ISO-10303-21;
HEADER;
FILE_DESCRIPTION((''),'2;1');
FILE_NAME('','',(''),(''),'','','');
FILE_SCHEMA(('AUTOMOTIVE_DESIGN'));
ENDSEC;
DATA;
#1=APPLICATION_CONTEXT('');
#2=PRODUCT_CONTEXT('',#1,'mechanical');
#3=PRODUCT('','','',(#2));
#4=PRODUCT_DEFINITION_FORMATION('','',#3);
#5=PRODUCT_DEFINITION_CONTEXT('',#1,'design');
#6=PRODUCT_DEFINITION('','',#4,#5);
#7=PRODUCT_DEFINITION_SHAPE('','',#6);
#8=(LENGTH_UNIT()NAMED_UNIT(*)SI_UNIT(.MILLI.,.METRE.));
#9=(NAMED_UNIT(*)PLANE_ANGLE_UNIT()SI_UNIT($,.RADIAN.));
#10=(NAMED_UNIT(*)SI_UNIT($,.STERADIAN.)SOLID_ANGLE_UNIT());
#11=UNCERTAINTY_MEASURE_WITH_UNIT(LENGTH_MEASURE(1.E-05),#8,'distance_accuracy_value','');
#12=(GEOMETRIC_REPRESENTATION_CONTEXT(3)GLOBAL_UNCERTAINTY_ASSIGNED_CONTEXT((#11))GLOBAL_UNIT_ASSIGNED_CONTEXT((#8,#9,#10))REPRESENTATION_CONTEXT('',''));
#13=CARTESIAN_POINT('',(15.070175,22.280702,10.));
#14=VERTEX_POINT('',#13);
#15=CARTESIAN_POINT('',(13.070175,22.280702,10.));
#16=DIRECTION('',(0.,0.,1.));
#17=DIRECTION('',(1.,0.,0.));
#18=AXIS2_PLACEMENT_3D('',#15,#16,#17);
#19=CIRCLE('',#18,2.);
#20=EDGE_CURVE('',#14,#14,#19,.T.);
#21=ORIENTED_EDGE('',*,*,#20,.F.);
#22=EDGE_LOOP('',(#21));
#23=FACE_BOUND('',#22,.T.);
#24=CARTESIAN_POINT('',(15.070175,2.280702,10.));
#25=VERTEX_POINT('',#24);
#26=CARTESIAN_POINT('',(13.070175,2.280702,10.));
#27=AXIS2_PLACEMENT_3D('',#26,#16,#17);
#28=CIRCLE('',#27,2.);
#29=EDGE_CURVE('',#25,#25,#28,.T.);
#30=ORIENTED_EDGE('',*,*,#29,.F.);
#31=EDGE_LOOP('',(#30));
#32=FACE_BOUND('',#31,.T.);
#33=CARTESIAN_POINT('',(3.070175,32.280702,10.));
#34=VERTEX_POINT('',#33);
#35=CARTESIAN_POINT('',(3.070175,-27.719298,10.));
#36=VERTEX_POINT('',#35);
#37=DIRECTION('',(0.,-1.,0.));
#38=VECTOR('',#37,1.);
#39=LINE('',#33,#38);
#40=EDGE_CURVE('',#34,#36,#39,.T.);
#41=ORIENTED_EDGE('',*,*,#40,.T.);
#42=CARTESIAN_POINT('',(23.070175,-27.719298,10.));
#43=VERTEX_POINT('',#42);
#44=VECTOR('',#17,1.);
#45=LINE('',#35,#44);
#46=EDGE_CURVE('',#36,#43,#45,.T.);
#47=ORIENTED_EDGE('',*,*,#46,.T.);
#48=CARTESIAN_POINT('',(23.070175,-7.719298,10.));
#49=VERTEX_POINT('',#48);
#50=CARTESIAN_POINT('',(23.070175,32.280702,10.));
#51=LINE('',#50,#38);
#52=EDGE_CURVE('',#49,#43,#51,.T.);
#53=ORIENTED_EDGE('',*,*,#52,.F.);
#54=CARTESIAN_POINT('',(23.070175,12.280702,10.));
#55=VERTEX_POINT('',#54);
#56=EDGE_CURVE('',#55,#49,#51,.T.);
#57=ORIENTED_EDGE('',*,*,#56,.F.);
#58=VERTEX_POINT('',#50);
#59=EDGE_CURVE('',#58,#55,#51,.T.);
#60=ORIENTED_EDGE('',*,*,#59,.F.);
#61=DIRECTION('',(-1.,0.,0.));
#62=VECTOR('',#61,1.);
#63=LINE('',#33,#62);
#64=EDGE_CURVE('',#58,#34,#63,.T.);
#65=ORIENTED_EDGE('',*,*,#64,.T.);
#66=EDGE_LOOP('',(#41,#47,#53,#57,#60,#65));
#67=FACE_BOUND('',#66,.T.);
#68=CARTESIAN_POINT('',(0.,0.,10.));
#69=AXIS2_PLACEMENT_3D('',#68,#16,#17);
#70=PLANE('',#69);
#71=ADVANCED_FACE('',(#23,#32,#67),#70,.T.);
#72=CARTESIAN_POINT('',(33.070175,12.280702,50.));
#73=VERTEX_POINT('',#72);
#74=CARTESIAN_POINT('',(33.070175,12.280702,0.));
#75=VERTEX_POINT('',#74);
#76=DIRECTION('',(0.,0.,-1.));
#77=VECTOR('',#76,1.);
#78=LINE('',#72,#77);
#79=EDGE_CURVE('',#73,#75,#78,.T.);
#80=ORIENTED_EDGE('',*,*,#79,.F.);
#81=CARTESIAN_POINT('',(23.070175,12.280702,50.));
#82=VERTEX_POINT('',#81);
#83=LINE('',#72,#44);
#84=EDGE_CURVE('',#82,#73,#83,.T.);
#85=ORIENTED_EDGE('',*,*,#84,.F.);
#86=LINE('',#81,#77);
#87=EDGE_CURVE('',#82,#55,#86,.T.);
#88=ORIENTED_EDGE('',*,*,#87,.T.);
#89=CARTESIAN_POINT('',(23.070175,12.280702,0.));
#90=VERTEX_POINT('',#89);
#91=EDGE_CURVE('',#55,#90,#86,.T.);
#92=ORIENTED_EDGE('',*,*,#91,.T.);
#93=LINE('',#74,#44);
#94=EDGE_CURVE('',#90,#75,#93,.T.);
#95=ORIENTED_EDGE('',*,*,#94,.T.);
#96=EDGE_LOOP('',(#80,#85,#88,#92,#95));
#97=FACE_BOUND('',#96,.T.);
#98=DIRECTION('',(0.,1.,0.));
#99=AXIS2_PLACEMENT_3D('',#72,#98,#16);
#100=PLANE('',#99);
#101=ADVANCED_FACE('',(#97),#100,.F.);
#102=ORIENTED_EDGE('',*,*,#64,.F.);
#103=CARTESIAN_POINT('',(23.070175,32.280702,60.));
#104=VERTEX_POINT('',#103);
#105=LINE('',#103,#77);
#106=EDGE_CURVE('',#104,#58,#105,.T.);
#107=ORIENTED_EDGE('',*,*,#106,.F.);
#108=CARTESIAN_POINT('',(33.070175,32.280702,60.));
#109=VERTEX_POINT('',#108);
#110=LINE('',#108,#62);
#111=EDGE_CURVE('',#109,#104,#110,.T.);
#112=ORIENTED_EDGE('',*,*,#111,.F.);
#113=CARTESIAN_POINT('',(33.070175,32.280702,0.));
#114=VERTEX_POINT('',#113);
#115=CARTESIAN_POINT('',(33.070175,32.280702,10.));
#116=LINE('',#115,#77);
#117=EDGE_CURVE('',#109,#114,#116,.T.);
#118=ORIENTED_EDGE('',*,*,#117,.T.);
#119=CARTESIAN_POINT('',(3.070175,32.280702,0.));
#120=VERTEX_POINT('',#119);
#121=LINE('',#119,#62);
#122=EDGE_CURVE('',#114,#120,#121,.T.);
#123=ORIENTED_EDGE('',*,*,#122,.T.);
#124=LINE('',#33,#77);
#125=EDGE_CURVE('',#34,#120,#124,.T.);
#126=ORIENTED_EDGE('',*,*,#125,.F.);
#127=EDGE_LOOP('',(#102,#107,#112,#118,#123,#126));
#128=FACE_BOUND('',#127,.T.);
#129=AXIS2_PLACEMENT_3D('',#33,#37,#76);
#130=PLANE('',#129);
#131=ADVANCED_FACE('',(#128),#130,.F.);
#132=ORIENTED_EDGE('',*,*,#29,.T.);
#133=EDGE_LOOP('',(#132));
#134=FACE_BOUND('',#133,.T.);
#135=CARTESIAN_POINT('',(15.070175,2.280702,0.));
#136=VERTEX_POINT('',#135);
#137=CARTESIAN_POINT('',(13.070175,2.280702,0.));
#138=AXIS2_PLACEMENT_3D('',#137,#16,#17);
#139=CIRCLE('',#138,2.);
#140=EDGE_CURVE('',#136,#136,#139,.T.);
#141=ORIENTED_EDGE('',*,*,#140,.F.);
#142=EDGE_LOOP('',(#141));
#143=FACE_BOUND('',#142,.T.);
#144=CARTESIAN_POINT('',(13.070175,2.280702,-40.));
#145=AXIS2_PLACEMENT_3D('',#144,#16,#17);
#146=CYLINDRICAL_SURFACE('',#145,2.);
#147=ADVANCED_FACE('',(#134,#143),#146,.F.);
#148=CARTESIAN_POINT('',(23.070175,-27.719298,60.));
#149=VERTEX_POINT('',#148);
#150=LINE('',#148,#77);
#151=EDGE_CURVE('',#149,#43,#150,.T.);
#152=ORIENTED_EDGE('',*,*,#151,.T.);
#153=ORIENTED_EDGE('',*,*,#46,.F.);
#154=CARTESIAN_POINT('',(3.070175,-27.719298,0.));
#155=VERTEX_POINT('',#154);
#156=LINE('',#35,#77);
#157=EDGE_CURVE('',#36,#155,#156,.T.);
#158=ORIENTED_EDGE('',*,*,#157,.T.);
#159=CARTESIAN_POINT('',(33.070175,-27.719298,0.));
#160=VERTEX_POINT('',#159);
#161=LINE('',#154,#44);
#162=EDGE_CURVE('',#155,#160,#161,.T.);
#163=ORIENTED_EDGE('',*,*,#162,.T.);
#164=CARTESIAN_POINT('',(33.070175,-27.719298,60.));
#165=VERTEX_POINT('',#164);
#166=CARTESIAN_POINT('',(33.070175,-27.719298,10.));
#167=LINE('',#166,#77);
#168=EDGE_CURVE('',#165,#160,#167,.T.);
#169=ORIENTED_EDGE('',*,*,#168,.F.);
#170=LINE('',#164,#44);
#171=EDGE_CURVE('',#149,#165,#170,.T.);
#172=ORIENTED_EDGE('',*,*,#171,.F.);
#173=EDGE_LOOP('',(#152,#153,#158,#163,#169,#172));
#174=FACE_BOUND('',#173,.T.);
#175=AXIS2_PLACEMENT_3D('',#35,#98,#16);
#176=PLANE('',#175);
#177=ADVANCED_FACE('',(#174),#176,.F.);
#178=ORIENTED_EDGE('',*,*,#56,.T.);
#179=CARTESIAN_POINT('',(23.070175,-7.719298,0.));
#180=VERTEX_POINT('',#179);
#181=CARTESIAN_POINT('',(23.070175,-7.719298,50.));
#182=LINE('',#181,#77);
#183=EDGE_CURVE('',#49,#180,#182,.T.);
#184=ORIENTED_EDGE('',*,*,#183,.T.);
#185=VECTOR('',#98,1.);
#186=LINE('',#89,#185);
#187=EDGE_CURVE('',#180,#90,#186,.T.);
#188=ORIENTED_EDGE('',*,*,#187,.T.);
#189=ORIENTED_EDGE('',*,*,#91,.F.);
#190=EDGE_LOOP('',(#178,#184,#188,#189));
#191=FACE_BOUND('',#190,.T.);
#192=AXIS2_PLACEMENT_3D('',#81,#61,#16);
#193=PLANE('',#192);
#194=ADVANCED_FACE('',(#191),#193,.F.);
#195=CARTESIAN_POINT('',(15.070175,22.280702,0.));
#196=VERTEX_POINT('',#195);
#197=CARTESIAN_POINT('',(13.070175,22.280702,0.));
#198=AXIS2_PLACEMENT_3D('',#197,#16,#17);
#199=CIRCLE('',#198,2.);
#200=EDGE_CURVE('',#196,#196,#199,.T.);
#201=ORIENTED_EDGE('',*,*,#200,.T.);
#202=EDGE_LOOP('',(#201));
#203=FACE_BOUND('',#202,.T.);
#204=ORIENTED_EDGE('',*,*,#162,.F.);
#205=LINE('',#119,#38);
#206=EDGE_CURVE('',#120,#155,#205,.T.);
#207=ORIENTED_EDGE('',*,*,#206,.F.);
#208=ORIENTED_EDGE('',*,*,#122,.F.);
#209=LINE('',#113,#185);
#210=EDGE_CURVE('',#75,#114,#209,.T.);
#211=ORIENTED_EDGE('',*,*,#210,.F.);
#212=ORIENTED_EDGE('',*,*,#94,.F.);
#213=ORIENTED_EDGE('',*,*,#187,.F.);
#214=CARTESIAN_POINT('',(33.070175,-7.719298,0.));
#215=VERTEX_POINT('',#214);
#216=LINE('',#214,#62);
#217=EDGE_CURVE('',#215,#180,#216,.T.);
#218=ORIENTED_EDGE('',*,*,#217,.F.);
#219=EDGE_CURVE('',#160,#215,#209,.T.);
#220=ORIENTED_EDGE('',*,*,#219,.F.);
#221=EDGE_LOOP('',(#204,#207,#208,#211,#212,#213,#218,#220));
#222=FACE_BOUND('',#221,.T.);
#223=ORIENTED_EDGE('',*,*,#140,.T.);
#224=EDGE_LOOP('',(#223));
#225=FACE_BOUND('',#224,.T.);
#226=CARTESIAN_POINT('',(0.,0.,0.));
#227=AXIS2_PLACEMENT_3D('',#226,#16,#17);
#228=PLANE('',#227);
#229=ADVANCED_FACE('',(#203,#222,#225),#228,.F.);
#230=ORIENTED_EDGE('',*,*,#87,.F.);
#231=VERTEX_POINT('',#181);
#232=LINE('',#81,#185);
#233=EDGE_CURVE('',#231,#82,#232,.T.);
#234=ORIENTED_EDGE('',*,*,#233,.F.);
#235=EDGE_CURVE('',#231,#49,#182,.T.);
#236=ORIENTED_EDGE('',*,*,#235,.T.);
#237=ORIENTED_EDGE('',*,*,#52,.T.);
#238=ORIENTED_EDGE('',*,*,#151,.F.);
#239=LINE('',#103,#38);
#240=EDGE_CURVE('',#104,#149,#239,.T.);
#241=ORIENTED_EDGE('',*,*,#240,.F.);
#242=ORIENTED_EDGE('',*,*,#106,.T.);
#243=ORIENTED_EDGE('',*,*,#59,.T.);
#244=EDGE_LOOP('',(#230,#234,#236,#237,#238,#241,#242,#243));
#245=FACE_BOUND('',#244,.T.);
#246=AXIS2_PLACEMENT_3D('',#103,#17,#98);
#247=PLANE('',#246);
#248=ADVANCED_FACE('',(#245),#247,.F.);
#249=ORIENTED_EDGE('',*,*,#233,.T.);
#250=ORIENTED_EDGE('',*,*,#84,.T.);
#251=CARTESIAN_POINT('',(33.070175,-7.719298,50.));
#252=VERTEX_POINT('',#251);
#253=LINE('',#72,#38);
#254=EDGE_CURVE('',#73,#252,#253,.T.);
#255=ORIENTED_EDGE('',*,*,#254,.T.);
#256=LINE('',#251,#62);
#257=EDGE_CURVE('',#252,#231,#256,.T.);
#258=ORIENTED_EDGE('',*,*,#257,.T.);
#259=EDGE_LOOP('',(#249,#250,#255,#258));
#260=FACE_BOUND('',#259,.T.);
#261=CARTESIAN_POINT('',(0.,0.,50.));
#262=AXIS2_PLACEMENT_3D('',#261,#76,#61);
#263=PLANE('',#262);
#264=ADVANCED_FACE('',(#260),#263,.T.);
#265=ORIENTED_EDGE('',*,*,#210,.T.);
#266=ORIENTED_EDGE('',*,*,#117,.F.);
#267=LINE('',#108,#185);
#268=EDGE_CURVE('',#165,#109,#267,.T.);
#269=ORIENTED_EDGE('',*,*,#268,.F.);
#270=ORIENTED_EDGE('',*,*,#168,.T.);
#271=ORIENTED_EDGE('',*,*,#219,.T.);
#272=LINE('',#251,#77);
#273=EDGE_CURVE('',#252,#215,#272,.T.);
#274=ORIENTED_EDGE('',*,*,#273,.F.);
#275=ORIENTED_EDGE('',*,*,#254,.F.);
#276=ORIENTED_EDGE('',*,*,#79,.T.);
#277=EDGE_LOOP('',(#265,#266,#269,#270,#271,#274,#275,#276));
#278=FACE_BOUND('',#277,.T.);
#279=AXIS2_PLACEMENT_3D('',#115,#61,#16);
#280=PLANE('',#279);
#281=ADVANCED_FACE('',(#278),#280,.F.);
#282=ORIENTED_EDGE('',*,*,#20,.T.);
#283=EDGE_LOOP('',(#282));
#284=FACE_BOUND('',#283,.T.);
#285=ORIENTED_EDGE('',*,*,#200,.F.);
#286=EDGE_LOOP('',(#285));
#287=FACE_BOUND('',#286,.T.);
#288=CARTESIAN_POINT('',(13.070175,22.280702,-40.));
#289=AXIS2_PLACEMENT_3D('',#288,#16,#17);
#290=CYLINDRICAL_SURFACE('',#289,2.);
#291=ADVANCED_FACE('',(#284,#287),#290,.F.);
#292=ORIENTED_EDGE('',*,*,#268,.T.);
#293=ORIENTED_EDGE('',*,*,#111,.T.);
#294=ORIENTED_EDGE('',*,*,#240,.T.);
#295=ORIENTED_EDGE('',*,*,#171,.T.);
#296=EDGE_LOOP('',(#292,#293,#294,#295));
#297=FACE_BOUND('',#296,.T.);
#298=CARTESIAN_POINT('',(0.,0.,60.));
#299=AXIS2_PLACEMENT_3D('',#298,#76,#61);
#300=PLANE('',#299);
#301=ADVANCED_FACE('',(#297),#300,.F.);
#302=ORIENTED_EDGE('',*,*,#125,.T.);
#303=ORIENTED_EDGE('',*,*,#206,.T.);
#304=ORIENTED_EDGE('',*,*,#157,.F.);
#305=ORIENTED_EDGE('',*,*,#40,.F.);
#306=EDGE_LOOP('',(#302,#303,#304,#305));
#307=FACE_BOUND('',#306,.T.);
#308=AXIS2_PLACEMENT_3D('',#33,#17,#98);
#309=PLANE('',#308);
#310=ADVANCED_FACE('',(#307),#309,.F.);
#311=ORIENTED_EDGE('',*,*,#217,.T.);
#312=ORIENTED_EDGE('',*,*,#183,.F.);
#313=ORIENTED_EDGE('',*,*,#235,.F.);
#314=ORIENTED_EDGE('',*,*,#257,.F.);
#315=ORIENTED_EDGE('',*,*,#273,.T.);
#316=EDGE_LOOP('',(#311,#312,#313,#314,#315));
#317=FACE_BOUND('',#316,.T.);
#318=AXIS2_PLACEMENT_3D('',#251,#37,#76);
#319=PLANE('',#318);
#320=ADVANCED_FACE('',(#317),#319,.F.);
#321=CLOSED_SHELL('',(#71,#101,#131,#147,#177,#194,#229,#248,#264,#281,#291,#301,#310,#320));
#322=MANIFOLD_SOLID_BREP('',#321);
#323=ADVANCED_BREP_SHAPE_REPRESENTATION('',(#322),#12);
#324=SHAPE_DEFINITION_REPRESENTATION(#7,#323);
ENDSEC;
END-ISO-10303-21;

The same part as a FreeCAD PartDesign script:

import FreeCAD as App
import Part
import Sketcher


def add_polygon(sketch, points):
    """Adds a closed chain of lines whose ends are joined by coincident constraints."""
    first, n = sketch.GeometryCount, len(points)
    for a, b in zip(points, points[1:] + points[:1]):
        sketch.addGeometry(Part.LineSegment(App.Vector(*a, 0), App.Vector(*b, 0)), False)
    for i in range(n):
        sketch.addConstraint(Sketcher.Constraint("Coincident", first + i, 2, first + (i + 1) % n, 1))

doc = App.newDocument("Part")
body = doc.addObject("PartDesign::Body", "Body")

# Sketch on XY plane
sketch1 = body.newObject("Sketcher::SketchObject", "Sketch")
sketch1.AttachmentSupport = (doc.getObject("XY_Plane"), [""])
sketch1.MapMode = "FlatFace"
add_polygon(sketch1, [(3, 32), (3, -28), (33, -28), (33, 32)])  # lines 0-3
sketch1.addConstraint([
    Sketcher.Constraint("Vertical", 0),
    Sketcher.Constraint("Horizontal", 1),
    Sketcher.Constraint("Vertical", 2),
    Sketcher.Constraint("Horizontal", 3),
    Sketcher.Constraint("DistanceX", 1, 1, 1, 2, 30.0),
    Sketcher.Constraint("DistanceY", 0, 2, 0, 1, 60.0),
    Sketcher.Constraint("DistanceY", 0, 2, -1, 1, 27.719298),
    Sketcher.Constraint("DistanceX", -1, 1, 0, 2, 3.070175),
])
pad1 = body.newObject("PartDesign::Pad", "Pad")
pad1.Profile = sketch1
pad1.Length = 10

# Sketch on XY plane
sketch2 = body.newObject("Sketcher::SketchObject", "Sketch001")
sketch2.AttachmentSupport = (doc.getObject("XY_Plane"), [""])
sketch2.MapMode = "FlatFace"
sketch2.AttachmentOffset = App.Placement(App.Vector(0, 0, 10), App.Rotation())
add_polygon(sketch2, [(23, 32), (23, -28), (33, -28), (33, 32)])  # lines 0-3
sketch2.addConstraint([
    Sketcher.Constraint("Vertical", 0),
    Sketcher.Constraint("Horizontal", 1),
    Sketcher.Constraint("Vertical", 2),
    Sketcher.Constraint("Horizontal", 3),
    Sketcher.Constraint("DistanceX", 1, 1, 1, 2, 10.0),
    Sketcher.Constraint("DistanceY", 0, 2, 0, 1, 60.0),
    Sketcher.Constraint("DistanceY", 0, 2, -1, 1, 27.719298),
    Sketcher.Constraint("DistanceX", -1, 1, 0, 2, 23.070175),
])
pad2 = body.newObject("PartDesign::Pad", "Pad001")
pad2.Profile = sketch2
pad2.Length = 50

# Sketch on XY plane
sketch3 = body.newObject("Sketcher::SketchObject", "Sketch002")
sketch3.AttachmentSupport = (doc.getObject("XY_Plane"), [""])
sketch3.MapMode = "FlatFace"
sketch3.AttachmentOffset = App.Placement(App.Vector(0, 0, 10), App.Rotation())
sketch3.addGeometry([
    Part.Circle(App.Vector(13.1, 22.3, 0), App.Vector(0, 0, 1), 2),
    Part.Circle(App.Vector(13.1, 2.3, 0), App.Vector(0, 0, 1), 2),
], False)
sketch3.addConstraint([
    Sketcher.Constraint("Equal", 0, 1),
    Sketcher.Constraint("Vertical", 0, 3, 1, 3),
    Sketcher.Constraint("Diameter", 0, 4.0),
    Sketcher.Constraint("DistanceY", 1, 3, 0, 3, 20.0),
    Sketcher.Constraint("DistanceY", -1, 1, 0, 3, 22.280702),
    Sketcher.Constraint("DistanceX", -1, 1, 0, 3, 13.070175),
])
pocket1 = body.newObject("PartDesign::Pocket", "Pocket")
pocket1.Profile = sketch3
pocket1.Length = 50

# Sketch on XY plane
sketch4 = body.newObject("Sketcher::SketchObject", "Sketch003")
sketch4.AttachmentSupport = (doc.getObject("XY_Plane"), [""])
sketch4.MapMode = "FlatFace"
add_polygon(sketch4, [(33, 12), (33, -8), (23, -8), (23, 12)])  # lines 0-3
sketch4.addConstraint([
    Sketcher.Constraint("Vertical", 0),
    Sketcher.Constraint("Horizontal", 1),
    Sketcher.Constraint("Vertical", 2),
    Sketcher.Constraint("Horizontal", 3),
    Sketcher.Constraint("DistanceX", 1, 2, 1, 1, 10.0),
    Sketcher.Constraint("DistanceY", 0, 2, 0, 1, 20.0),
    Sketcher.Constraint("DistanceY", 0, 2, -1, 1, 7.719298),
    Sketcher.Constraint("DistanceX", -1, 1, 0, 2, 33.070175),
])
pocket2 = body.newObject("PartDesign::Pocket", "Pocket001")
pocket2.Profile = sketch4
pocket2.Length = 50
pocket2.Reversed = True

doc.recompute()
